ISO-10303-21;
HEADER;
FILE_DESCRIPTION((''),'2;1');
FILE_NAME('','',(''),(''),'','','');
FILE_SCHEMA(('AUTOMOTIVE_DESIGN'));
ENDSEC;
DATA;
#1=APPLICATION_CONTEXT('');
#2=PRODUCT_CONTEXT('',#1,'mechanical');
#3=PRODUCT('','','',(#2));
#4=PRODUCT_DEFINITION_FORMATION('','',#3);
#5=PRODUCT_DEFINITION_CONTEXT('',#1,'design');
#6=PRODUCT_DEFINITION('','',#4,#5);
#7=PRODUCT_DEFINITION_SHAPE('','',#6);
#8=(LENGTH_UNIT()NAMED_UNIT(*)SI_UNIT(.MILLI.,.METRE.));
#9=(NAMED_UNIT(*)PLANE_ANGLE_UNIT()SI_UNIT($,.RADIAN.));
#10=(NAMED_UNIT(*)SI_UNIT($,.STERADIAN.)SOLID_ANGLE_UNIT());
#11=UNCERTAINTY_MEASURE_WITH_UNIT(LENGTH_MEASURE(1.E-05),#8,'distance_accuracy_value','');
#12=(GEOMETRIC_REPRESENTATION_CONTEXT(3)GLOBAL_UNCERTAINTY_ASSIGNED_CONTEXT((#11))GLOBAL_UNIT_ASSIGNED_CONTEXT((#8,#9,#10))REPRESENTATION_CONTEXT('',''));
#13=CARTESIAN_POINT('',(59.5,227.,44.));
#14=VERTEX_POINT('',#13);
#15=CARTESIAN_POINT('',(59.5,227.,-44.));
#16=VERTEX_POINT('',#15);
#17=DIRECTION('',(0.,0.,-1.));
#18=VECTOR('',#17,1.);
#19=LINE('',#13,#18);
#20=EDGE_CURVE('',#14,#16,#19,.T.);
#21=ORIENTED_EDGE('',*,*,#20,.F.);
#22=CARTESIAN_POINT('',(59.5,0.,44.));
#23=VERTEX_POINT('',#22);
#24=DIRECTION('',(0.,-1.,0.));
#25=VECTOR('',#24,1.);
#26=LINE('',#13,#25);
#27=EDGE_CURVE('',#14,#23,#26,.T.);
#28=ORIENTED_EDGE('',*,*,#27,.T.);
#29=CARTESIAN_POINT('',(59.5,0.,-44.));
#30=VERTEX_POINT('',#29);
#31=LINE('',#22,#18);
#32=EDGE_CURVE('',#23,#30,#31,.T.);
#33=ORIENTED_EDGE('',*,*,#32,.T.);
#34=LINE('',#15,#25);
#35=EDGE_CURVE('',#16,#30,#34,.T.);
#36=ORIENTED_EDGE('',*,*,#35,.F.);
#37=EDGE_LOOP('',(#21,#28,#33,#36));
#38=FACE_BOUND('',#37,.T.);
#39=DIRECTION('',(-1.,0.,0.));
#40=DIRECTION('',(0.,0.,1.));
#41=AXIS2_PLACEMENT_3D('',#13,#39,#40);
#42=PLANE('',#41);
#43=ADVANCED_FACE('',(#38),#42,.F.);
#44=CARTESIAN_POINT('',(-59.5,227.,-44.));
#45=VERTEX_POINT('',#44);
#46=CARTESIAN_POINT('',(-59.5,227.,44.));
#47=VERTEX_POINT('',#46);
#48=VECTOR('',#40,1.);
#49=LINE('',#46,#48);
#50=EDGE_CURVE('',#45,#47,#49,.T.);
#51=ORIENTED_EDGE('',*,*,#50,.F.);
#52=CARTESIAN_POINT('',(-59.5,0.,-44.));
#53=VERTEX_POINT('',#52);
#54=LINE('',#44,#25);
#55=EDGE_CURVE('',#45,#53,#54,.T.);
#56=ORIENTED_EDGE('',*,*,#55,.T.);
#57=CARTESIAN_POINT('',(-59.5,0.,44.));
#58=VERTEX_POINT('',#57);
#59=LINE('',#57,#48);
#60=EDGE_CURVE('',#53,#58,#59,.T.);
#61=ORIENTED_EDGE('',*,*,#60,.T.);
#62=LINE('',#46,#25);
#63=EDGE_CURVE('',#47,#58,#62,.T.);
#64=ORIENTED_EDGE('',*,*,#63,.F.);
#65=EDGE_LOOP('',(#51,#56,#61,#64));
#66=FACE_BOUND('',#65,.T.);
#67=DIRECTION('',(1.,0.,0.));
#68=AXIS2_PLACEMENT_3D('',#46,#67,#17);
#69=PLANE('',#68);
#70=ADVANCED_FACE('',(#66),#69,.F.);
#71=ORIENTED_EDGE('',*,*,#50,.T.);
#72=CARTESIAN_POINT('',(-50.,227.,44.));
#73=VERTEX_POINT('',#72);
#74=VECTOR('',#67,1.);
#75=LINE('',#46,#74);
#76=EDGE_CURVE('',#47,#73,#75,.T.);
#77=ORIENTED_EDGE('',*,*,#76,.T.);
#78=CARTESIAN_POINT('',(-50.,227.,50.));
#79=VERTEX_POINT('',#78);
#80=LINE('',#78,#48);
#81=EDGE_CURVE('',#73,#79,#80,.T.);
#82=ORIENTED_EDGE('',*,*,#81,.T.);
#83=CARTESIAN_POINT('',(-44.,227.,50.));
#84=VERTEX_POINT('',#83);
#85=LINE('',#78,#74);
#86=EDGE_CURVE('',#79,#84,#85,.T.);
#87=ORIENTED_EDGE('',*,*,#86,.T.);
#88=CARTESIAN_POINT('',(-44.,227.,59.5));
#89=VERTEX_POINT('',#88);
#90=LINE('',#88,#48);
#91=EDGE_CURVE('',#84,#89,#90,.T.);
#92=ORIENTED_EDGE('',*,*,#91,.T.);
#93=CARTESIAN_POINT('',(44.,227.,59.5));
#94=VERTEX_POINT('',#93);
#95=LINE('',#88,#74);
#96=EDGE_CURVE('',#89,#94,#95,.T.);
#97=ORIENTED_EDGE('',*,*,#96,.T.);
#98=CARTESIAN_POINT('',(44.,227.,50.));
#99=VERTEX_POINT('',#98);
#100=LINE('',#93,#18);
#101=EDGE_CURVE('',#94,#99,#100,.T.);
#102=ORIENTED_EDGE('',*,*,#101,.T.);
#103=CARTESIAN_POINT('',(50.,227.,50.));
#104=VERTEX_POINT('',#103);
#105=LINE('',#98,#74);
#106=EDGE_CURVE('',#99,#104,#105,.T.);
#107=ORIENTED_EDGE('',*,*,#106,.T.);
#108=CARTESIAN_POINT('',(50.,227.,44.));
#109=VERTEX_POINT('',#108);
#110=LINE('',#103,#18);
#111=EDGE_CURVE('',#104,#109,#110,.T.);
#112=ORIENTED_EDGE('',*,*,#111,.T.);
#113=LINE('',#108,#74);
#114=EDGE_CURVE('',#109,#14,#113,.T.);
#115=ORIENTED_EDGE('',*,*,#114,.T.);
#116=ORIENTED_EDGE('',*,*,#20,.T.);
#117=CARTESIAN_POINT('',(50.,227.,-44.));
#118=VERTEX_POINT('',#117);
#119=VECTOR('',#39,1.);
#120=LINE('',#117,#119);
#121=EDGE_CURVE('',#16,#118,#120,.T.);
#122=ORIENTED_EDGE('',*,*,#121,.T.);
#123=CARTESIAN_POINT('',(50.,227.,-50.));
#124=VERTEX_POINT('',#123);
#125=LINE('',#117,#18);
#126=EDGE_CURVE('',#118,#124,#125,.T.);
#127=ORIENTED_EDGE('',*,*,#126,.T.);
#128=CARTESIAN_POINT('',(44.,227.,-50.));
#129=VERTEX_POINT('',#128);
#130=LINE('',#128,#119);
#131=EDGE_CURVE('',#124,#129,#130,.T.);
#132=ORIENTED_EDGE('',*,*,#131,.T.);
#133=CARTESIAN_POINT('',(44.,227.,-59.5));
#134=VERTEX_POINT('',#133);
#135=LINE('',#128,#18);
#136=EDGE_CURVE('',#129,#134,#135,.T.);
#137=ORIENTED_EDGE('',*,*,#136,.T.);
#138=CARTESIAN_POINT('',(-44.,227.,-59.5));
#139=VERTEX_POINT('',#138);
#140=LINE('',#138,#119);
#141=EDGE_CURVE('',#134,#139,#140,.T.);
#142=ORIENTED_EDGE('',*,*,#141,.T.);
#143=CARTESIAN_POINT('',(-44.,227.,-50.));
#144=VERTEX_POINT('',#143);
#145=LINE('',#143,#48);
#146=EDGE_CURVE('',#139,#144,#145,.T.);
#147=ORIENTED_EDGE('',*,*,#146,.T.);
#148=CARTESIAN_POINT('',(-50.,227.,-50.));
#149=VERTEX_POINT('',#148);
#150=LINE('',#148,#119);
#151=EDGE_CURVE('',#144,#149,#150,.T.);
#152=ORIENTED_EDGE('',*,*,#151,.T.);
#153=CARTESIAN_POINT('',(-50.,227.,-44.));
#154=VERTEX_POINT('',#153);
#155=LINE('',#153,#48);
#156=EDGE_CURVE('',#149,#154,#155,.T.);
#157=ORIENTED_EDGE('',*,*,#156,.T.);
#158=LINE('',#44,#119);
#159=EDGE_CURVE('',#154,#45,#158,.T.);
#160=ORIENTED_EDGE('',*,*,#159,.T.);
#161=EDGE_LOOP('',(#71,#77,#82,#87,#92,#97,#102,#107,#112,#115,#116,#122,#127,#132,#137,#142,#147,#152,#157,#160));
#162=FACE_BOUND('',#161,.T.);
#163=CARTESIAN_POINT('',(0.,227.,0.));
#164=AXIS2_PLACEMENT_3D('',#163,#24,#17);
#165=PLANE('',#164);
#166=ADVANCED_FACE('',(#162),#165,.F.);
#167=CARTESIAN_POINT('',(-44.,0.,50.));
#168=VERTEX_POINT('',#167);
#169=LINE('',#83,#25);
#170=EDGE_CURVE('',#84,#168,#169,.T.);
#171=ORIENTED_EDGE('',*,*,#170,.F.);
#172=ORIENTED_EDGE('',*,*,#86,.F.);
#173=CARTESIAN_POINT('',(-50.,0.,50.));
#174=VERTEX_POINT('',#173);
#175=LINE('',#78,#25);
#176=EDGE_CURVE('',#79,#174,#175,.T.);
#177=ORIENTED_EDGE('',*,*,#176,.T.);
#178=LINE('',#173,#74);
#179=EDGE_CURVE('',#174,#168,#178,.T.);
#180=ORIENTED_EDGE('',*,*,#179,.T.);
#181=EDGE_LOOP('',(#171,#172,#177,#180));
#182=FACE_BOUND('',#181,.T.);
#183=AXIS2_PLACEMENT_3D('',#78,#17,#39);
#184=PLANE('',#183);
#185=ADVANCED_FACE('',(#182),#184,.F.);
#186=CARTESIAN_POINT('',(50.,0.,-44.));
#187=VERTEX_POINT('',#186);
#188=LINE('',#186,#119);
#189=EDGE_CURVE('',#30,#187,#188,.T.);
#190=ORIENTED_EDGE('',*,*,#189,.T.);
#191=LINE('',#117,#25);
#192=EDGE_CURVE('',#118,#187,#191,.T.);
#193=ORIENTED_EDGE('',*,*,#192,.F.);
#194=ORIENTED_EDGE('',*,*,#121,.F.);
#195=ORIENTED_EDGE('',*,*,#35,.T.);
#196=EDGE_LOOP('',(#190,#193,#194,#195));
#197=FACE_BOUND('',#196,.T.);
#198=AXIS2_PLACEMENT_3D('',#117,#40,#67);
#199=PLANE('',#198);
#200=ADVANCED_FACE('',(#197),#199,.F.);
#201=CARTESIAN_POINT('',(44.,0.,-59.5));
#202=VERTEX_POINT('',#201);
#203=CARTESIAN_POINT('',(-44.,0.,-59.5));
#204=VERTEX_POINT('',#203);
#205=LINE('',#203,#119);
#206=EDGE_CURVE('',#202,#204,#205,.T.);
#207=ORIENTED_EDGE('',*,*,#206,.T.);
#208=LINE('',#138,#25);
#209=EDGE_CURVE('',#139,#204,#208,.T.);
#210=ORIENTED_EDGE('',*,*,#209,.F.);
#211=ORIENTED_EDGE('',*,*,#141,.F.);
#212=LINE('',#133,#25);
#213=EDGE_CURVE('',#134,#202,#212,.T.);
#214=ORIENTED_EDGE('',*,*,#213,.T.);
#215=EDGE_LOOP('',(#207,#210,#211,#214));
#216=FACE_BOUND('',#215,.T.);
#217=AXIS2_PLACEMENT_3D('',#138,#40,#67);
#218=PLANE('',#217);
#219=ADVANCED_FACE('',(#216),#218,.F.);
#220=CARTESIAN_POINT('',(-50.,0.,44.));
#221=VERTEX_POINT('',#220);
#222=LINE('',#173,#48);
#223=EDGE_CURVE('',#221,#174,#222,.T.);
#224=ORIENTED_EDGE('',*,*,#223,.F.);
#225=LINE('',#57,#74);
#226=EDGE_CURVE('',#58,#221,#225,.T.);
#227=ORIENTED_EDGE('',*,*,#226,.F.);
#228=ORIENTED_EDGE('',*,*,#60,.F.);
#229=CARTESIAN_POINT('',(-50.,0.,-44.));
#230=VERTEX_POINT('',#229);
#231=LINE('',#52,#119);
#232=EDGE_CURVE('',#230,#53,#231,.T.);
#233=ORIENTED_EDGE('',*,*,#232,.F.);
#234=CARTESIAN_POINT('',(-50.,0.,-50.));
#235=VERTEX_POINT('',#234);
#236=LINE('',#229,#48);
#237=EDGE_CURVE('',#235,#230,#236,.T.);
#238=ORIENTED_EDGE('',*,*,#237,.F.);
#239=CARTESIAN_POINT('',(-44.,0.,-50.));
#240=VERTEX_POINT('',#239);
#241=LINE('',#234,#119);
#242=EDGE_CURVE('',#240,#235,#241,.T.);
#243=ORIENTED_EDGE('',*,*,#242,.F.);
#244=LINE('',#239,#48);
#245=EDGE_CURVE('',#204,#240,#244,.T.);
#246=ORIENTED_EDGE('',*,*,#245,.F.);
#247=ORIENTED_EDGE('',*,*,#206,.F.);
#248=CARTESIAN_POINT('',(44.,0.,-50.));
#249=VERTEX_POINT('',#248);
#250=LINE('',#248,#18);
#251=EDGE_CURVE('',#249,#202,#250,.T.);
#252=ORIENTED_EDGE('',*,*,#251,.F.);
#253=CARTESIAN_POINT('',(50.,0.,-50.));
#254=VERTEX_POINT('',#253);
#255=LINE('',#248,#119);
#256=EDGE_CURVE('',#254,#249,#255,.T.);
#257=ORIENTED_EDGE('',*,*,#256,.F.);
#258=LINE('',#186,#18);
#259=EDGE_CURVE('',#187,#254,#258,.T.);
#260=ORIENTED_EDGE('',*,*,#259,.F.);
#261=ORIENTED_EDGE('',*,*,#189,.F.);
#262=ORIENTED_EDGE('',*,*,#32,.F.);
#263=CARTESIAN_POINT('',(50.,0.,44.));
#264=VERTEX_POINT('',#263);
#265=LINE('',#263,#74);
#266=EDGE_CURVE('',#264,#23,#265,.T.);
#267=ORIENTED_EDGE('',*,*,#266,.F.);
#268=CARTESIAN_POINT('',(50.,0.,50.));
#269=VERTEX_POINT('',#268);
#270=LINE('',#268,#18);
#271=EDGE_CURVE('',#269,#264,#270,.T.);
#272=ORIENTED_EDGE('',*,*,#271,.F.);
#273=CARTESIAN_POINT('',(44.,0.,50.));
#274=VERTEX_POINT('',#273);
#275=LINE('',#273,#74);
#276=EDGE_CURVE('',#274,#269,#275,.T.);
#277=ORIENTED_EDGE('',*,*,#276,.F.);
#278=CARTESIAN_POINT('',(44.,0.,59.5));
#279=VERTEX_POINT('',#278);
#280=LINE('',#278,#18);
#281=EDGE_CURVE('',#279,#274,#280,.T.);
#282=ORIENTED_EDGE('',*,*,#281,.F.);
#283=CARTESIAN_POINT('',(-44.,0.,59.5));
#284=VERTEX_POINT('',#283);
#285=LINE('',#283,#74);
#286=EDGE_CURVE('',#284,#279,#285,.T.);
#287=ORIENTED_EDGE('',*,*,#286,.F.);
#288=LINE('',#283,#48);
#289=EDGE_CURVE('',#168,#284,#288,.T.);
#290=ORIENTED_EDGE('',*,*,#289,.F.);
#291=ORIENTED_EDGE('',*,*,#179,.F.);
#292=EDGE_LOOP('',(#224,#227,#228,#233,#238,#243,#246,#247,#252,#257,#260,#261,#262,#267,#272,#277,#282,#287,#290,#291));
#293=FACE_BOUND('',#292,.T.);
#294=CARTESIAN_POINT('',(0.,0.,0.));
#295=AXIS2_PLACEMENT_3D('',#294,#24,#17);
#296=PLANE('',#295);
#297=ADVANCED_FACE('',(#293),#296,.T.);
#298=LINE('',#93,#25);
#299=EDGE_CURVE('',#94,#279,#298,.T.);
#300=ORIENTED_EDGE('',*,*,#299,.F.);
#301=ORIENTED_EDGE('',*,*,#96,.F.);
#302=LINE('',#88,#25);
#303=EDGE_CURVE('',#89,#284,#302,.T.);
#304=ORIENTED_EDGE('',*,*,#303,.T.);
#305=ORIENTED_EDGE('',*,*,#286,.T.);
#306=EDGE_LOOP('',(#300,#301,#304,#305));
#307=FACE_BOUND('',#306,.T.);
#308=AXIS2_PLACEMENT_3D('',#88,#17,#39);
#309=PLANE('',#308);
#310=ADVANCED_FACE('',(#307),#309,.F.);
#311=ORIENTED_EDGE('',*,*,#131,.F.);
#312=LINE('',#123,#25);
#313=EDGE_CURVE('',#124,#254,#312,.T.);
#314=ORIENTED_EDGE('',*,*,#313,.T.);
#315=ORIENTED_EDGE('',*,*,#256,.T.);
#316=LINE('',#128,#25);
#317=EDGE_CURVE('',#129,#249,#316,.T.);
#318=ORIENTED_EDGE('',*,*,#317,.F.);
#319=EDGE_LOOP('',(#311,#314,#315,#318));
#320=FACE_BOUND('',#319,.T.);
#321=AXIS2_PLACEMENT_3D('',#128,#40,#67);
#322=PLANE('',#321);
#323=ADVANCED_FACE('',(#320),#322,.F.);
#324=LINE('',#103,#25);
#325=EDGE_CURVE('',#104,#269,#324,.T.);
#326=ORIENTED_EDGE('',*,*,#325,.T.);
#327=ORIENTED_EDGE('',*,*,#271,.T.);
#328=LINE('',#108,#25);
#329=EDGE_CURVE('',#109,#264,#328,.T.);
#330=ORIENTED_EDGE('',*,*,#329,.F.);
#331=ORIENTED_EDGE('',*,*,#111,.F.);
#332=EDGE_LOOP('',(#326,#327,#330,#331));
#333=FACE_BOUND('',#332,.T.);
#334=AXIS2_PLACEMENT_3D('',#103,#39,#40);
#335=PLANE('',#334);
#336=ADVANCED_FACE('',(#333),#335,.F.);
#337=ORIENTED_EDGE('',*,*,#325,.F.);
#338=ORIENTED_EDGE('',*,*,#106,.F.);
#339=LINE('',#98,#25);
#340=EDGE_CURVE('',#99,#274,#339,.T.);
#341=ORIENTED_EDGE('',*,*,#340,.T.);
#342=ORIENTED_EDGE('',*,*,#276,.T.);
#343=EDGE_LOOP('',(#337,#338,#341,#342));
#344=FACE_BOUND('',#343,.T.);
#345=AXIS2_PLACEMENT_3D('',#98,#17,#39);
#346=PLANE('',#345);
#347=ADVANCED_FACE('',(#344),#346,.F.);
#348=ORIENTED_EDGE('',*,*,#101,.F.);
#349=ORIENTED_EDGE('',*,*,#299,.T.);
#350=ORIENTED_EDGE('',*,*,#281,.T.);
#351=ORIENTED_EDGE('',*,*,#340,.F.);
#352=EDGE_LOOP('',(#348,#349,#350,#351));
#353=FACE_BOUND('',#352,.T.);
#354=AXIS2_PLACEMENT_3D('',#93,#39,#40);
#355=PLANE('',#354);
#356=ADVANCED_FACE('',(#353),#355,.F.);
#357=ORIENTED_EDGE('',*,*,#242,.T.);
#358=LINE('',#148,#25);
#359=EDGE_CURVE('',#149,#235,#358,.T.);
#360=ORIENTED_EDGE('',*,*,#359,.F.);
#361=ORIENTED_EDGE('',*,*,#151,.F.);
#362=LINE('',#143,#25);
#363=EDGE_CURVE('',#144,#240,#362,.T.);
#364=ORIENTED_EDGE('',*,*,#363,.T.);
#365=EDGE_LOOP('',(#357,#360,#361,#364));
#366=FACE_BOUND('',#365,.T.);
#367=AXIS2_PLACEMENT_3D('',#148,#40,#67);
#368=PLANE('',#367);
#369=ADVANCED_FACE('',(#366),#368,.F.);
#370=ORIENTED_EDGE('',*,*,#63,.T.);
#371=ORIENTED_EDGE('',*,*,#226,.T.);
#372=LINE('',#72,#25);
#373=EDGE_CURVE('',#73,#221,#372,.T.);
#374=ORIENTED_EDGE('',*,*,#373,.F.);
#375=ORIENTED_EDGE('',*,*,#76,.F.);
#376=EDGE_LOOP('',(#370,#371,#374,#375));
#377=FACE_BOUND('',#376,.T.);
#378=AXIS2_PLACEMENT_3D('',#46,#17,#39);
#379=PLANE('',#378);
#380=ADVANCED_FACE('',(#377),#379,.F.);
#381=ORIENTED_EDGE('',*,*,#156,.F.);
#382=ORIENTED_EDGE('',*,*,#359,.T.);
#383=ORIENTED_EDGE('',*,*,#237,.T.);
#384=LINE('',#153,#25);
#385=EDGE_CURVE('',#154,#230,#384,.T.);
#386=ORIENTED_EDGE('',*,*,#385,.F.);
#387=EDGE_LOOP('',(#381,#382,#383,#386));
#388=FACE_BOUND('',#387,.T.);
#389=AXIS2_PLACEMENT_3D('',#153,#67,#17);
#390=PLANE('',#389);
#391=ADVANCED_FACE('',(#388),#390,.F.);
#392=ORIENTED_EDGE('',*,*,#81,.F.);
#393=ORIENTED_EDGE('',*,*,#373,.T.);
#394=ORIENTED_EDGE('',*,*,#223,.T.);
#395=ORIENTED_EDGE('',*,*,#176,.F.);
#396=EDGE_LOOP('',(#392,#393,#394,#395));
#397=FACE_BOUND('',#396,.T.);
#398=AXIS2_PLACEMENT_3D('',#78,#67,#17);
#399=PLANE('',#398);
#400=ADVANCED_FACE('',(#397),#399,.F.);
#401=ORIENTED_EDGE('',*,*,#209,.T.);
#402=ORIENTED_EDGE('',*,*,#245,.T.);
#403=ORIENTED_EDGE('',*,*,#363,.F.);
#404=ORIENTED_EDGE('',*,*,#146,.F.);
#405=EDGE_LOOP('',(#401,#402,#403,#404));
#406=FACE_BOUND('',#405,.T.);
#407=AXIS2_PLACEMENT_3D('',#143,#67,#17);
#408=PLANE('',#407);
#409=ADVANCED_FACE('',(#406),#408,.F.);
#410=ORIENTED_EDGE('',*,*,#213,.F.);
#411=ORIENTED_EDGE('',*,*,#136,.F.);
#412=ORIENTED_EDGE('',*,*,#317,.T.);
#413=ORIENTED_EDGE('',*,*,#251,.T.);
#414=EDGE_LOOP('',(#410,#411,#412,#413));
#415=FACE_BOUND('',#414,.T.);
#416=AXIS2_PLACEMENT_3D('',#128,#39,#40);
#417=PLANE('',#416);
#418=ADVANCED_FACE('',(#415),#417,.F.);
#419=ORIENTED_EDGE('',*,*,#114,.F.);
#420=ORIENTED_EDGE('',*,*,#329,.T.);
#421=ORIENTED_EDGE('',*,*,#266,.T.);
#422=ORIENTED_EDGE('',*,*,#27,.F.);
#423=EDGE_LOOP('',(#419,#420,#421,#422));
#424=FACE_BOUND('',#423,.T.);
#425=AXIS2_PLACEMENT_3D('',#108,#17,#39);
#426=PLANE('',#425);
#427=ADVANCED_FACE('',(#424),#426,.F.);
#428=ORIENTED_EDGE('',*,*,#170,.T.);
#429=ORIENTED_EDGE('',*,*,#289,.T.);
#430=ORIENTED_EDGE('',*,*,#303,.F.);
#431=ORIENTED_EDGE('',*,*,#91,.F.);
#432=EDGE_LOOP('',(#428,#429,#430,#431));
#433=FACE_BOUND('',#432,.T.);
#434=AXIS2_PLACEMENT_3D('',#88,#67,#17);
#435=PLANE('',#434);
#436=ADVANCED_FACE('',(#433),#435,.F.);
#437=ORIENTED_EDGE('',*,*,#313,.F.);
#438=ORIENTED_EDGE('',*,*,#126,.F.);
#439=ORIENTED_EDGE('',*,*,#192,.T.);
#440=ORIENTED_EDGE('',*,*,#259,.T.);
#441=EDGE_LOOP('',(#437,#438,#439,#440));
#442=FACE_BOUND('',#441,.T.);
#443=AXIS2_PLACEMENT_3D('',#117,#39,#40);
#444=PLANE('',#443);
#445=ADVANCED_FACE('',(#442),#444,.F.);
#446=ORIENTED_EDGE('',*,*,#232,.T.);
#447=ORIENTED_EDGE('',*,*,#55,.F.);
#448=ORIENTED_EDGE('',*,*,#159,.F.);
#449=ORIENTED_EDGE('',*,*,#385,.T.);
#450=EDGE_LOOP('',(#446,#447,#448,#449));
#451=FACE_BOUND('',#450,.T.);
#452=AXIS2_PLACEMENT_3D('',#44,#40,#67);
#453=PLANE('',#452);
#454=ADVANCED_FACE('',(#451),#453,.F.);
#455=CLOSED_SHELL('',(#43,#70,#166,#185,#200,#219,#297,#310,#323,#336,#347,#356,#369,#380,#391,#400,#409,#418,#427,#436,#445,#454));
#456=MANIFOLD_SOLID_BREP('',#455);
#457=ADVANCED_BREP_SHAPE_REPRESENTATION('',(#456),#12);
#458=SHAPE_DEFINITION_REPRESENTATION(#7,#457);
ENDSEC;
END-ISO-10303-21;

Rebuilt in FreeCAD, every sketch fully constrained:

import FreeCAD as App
import Part
import Sketcher

V = App.Vector

doc = App.newDocument("Part")
body = doc.addObject("PartDesign::Body", "Body")

# Sketch on XZ plane
sketch1 = body.newObject("Sketcher::SketchObject", "Sketch")
sketch1.AttachmentSupport = (doc.getObject("XZ_Plane"), [""])
sketch1.MapMode = "FlatFace"
sketch1.addGeometry([
    Part.LineSegment(V(-44, -60, 0), V(-44, -50, 0)),  # 0
    Part.LineSegment(V(-44, -50, 0), V(-50, -50, 0)),  # 1
    Part.LineSegment(V(-50, -50, 0), V(-50, -44, 0)),  # 2
    Part.LineSegment(V(-50, -44, 0), V(-60, -44, 0)),  # 3
    Part.LineSegment(V(-60, -44, 0), V(-60, 44, 0)),  # 4
    Part.LineSegment(V(-60, 44, 0), V(-50, 44, 0)),  # 5
    Part.LineSegment(V(-50, 44, 0), V(-50, 50, 0)),  # 6
    Part.LineSegment(V(-50, 50, 0), V(-44, 50, 0)),  # 7
    Part.LineSegment(V(-44, 50, 0), V(-44, 60, 0)),  # 8
    Part.LineSegment(V(-44, 60, 0), V(44, 60, 0)),  # 9
    Part.LineSegment(V(44, 60, 0), V(44, 50, 0)),  # 10
    Part.LineSegment(V(44, 50, 0), V(50, 50, 0)),  # 11
    Part.LineSegment(V(50, 50, 0), V(50, 44, 0)),  # 12
    Part.LineSegment(V(50, 44, 0), V(60, 44, 0)),  # 13
    Part.LineSegment(V(60, 44, 0), V(60, -44, 0)),  # 14
    Part.LineSegment(V(60, -44, 0), V(50, -44, 0)),  # 15
    Part.LineSegment(V(50, -44, 0), V(50, -50, 0)),  # 16
    Part.LineSegment(V(50, -50, 0), V(44, -50, 0)),  # 17
    Part.LineSegment(V(44, -50, 0), V(44, -60, 0)),  # 18
    Part.LineSegment(V(44, -60, 0), V(-44, -60, 0)),  # 19
], False)
sketch1.addConstraint([
    Sketcher.Constraint("Coincident", 0, 2, 1, 1),
    Sketcher.Constraint("Coincident", 1, 2, 2, 1),
    Sketcher.Constraint("Coincident", 2, 2, 3, 1),
    Sketcher.Constraint("Coincident", 3, 2, 4, 1),
    Sketcher.Constraint("Coincident", 4, 2, 5, 1),
    Sketcher.Constraint("Coincident", 5, 2, 6, 1),
    Sketcher.Constraint("Coincident", 6, 2, 7, 1),
    Sketcher.Constraint("Coincident", 7, 2, 8, 1),
    Sketcher.Constraint("Coincident", 8, 2, 9, 1),
    Sketcher.Constraint("Coincident", 9, 2, 10, 1),
    Sketcher.Constraint("Coincident", 10, 2, 11, 1),
    Sketcher.Constraint("Coincident", 11, 2, 12, 1),
    Sketcher.Constraint("Coincident", 12, 2, 13, 1),
    Sketcher.Constraint("Coincident", 13, 2, 14, 1),
    Sketcher.Constraint("Coincident", 14, 2, 15, 1),
    Sketcher.Constraint("Coincident", 15, 2, 16, 1),
    Sketcher.Constraint("Coincident", 16, 2, 17, 1),
    Sketcher.Constraint("Coincident", 17, 2, 18, 1),
    Sketcher.Constraint("Coincident", 18, 2, 19, 1),
    Sketcher.Constraint("Coincident", 19, 2, 0, 1),
    Sketcher.Constraint("Vertical", 0),
    Sketcher.Constraint("Horizontal", 1),
    Sketcher.Constraint("Vertical", 2),
    Sketcher.Constraint("Horizontal", 3),
    Sketcher.Constraint("Vertical", 4),
    Sketcher.Constraint("Horizontal", 5),
    Sketcher.Constraint("Vertical", 6),
    Sketcher.Constraint("Horizontal", 7),
    Sketcher.Constraint("Vertical", 8),
    Sketcher.Constraint("Horizontal", 9),
    Sketcher.Constraint("Vertical", 10),
    Sketcher.Constraint("Horizontal", 11),
    Sketcher.Constraint("Vertical", 12),
    Sketcher.Constraint("Horizontal", 13),
    Sketcher.Constraint("Vertical", 14),
    Sketcher.Constraint("Horizontal", 15),
    Sketcher.Constraint("Vertical", 16),
    Sketcher.Constraint("Horizontal", 17),
    Sketcher.Constraint("Vertical", 18),
    Sketcher.Constraint("Horizontal", 19),
    Sketcher.Constraint("Symmetric", 0, 2, 10, 2, -1, 1),
    Sketcher.Constraint("Symmetric", 2, 2, 12, 2, -1, 1),
    Sketcher.Constraint("Symmetric", 4, 2, 14, 2, -1, 1),
    Sketcher.Constraint("Symmetric", 6, 2, 16, 2, -1, 1),
    Sketcher.Constraint("Symmetric", 8, 2, 18, 2, -1, 1),
    Sketcher.Constraint("Symmetric", 7, 2, 10, 2, -2),
    Sketcher.Constraint("Symmetric", 5, 2, 12, 2, -2),
    Sketcher.Constraint("Equal", 15, 0),
    Sketcher.Constraint("Equal", 17, 2),
    Sketcher.Constraint("Equal", 19, 4),
    Sketcher.Constraint("DistanceX", 1, 2, 1, 1, 6.0),
    Sketcher.Constraint("DistanceX", 9, 1, 9, 2, 88.0),
    Sketcher.Constraint("DistanceX", 3, 2, 3, 1, 9.5),
])
pad1 = body.newObject("PartDesign::Pad", "Pad")
pad1.Profile = sketch1
pad1.Length = 227
pad1.Reversed = True

doc.recompute()
